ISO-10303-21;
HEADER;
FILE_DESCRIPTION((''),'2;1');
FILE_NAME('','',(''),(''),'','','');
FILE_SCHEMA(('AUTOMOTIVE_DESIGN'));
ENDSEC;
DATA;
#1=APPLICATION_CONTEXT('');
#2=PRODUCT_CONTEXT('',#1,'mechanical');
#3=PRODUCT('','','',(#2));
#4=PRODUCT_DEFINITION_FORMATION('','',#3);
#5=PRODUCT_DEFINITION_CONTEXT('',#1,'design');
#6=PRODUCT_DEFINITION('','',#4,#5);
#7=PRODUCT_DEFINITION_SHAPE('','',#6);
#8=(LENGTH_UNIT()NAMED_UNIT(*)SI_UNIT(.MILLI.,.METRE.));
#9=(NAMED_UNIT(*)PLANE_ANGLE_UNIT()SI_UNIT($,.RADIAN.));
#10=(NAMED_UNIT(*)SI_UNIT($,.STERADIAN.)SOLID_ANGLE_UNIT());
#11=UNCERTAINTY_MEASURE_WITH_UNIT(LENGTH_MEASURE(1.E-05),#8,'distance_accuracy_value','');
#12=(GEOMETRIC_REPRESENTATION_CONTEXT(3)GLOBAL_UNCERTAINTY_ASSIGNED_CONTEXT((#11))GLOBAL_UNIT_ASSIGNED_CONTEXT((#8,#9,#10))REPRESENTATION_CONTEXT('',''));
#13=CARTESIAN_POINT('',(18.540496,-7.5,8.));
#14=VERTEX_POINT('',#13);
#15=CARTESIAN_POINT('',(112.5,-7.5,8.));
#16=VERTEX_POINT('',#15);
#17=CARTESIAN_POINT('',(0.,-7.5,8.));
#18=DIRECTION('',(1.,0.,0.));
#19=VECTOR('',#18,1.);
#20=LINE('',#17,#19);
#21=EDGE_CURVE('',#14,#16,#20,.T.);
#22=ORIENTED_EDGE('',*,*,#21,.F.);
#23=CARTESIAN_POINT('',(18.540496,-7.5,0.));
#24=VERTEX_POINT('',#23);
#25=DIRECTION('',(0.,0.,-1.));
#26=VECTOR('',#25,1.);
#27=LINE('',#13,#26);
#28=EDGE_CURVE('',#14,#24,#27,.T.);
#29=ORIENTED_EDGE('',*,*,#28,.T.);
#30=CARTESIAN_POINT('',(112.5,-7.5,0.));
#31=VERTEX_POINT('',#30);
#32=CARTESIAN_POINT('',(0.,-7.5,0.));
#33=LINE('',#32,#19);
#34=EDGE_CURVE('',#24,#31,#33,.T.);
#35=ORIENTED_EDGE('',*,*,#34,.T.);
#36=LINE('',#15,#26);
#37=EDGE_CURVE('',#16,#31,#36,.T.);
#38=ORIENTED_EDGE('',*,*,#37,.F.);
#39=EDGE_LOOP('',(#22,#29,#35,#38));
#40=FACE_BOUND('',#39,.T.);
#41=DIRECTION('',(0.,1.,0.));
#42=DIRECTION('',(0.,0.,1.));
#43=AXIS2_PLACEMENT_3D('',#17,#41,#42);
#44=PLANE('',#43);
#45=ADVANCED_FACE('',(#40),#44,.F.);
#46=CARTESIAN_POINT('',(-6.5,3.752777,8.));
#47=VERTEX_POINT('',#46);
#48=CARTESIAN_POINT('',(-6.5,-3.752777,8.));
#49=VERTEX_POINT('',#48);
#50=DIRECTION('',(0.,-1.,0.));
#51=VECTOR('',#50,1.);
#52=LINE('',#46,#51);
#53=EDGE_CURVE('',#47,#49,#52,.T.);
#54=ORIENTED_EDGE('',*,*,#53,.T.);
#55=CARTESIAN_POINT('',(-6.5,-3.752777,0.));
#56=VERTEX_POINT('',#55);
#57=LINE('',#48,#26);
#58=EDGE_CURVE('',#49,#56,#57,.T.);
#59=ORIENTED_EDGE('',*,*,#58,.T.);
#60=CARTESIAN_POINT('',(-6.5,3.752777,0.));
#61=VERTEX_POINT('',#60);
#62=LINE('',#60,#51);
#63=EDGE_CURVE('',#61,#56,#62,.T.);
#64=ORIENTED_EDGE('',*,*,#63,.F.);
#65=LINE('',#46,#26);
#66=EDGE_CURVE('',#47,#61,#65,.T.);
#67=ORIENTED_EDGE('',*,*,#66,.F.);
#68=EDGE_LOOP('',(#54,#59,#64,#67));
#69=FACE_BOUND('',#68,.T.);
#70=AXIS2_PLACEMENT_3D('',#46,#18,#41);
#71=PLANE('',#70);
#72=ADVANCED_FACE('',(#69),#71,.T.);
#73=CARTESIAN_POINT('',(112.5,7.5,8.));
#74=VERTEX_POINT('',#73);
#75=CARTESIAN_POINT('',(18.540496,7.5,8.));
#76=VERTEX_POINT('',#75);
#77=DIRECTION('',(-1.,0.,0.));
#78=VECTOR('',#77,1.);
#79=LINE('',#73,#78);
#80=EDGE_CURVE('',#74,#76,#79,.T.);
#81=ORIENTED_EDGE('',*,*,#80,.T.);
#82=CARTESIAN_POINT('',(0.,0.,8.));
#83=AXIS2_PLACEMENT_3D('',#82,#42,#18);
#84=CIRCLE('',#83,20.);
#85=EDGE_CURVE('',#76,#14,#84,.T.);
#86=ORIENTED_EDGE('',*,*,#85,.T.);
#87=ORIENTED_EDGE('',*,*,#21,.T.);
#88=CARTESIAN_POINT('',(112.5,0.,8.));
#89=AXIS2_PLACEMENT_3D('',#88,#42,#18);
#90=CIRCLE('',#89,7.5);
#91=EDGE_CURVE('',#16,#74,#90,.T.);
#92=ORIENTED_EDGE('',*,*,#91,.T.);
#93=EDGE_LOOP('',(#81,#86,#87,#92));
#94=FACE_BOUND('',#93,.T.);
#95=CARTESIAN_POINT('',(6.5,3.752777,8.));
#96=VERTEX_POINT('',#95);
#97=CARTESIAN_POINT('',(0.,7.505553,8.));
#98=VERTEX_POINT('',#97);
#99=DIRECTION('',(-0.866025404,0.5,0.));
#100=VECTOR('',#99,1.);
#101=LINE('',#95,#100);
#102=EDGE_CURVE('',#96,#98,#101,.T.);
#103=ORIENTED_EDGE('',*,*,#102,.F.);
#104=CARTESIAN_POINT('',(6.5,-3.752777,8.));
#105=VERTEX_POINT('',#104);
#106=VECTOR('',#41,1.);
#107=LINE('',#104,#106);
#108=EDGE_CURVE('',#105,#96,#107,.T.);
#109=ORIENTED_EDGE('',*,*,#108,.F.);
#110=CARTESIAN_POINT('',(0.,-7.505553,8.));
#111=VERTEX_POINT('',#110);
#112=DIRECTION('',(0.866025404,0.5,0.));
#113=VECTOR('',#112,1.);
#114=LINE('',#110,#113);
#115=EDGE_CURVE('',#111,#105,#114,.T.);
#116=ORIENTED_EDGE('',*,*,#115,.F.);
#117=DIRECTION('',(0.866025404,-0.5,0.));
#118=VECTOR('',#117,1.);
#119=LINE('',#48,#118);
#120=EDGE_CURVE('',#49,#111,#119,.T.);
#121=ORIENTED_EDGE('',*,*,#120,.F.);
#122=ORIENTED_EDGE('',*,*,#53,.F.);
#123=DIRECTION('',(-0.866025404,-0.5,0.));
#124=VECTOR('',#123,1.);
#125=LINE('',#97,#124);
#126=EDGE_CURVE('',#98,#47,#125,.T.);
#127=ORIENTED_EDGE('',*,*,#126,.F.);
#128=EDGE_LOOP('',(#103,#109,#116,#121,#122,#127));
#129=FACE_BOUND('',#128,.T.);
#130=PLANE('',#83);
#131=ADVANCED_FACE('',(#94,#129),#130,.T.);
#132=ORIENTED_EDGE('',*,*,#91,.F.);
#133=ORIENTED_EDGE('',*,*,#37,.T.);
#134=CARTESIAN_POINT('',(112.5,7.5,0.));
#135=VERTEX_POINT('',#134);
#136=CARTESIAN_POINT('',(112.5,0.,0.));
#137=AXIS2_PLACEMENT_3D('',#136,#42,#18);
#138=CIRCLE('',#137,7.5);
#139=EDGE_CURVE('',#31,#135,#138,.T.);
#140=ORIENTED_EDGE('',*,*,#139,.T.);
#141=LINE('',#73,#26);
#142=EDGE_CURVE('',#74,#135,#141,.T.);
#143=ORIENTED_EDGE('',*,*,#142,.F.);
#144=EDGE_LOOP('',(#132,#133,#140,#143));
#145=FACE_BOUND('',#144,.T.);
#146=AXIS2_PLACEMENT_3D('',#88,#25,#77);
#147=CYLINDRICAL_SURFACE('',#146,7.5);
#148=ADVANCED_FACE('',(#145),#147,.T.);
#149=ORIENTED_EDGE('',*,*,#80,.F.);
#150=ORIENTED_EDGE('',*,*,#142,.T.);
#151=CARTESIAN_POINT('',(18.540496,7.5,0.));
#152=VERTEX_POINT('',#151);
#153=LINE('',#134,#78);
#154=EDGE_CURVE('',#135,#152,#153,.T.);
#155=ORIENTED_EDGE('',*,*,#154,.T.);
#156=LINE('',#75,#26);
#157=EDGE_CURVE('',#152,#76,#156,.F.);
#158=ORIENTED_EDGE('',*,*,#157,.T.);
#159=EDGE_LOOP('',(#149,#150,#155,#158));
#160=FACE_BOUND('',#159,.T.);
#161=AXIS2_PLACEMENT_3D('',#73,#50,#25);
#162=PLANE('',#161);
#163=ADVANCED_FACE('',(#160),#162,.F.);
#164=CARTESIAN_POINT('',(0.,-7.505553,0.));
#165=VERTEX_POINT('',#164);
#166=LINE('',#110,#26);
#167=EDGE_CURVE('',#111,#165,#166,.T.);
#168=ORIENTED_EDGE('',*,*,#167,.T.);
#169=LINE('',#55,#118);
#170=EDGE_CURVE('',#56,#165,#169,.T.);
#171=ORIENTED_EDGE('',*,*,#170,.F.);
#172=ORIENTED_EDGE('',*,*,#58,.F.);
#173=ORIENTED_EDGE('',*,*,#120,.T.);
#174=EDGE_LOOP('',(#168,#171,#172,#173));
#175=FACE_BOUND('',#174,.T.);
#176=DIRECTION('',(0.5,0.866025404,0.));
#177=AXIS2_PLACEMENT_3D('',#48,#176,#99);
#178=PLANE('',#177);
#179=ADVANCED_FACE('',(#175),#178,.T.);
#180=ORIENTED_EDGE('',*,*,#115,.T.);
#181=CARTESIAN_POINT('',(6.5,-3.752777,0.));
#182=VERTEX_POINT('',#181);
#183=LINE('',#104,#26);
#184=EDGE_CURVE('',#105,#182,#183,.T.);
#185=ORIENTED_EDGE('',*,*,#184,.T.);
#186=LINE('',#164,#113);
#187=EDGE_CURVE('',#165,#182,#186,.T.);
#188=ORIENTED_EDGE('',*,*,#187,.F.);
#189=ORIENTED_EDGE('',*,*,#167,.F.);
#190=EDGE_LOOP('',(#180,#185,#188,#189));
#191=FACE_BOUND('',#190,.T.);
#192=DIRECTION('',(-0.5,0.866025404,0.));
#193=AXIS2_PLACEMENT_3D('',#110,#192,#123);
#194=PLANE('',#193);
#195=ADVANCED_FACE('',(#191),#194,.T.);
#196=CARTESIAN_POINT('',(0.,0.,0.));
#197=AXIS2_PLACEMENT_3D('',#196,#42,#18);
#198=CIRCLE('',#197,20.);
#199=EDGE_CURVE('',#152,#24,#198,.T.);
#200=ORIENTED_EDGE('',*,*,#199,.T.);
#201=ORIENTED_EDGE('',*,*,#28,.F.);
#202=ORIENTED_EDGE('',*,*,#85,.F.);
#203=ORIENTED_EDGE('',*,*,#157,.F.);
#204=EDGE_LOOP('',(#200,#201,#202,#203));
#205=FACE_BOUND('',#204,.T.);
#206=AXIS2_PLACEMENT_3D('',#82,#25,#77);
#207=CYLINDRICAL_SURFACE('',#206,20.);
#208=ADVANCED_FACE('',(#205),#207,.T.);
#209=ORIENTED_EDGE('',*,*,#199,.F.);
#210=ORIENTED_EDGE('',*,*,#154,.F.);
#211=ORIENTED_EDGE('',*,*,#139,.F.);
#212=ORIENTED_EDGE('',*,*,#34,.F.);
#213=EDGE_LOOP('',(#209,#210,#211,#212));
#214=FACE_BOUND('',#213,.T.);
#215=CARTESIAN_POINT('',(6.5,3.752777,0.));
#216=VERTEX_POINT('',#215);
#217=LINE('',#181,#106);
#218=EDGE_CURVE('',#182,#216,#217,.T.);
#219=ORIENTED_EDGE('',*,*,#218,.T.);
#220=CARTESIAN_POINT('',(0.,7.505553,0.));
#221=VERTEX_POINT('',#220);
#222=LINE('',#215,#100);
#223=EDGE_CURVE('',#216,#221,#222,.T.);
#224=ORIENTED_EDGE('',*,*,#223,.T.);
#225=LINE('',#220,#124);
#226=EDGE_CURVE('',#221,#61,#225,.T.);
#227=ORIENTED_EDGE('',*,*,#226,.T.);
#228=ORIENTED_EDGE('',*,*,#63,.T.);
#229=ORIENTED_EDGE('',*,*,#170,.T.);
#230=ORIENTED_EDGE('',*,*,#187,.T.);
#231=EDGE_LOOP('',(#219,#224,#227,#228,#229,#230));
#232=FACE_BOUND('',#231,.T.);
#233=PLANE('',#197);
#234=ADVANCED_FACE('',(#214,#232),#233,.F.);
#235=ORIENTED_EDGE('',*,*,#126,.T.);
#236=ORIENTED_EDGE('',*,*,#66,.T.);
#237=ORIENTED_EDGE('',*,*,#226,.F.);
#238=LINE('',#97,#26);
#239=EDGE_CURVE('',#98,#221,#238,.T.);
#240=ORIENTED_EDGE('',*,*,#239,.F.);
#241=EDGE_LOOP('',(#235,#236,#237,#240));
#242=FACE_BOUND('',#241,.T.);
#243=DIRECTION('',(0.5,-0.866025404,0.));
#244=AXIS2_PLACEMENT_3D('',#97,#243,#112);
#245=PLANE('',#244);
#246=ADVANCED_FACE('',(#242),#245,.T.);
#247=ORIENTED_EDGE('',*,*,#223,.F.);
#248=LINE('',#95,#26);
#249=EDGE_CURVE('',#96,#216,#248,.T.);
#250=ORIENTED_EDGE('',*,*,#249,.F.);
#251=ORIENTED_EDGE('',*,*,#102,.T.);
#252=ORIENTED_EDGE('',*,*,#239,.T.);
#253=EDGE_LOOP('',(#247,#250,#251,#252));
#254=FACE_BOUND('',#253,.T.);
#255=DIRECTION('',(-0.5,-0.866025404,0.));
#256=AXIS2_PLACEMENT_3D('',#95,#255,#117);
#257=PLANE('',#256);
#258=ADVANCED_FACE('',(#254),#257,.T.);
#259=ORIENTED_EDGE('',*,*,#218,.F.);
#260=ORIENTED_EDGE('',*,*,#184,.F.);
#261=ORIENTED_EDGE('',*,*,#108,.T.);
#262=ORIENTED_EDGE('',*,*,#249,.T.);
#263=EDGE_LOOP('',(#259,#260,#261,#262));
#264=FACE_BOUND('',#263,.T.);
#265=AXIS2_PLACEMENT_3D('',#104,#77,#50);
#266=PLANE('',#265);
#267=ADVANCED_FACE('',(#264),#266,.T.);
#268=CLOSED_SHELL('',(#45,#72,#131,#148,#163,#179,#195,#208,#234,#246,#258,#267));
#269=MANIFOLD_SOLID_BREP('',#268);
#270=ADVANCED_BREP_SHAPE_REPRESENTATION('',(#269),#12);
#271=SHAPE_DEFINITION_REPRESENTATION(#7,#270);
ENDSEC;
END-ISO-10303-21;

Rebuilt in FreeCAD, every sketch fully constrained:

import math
import FreeCAD as App
import Part
import Sketcher
from FreeCAD import Vector
Q = App.Units.Quantity


def add_polygon(sketch, points):
    """Adds a closed chain of lines whose ends are joined by coincident constraints."""
    first, n = sketch.GeometryCount, len(points)
    for a, b in zip(points, points[1:] + points[:1]):
        sketch.addGeometry(Part.LineSegment(App.Vector(*a, 0), App.Vector(*b, 0)), False)
    for i in range(n):
        sketch.addConstraint(Sketcher.Constraint("Coincident", first + i, 2, first + (i + 1) % n, 1))

doc = App.newDocument("Part")
params = doc.addObject("Spreadsheet::Sheet", "Params")
for row, (alias, value) in enumerate([
    ("sketch1_diameter", "40 mm"),
    ("pad1_length", "8 mm"),
    ("sketch2_radius", "7.5 mm"),
    ("sketch2_width", "112.5 mm"),
    ("pad2_length", "8 mm"),
], start=1):
    params.set(f"A{row}", alias)
    params.set(f"B{row}", "=" + value)
    params.setAlias(f"B{row}", alias)

body = doc.addObject("PartDesign::Body", "Body")

sketch1 = body.newObject("Sketcher::SketchObject", "Sketch")
sketch1.AttachmentSupport = (doc.getObject("XY_Plane"), [""])
sketch1.MapMode = "FlatFace"
sketch1.addGeometry(Part.Circle(Vector(0, 0, 0), Vector(0, 0, 1), 20), False)
sketch1.addConstraint([
    Sketcher.Constraint("Coincident", 0, 3, -1, 1),
    Sketcher.Constraint("Diameter", 0, 40.0),
])
sketch1.setExpression("Constraints[1]", "Params.sketch1_diameter")
pad1 = body.newObject("PartDesign::Pad", "Pad")
pad1.Profile = sketch1
pad1.setExpression("Length", "Params.pad1_length")

sketch2 = body.newObject("Sketcher::SketchObject", "Sketch001")
sketch2.AttachmentSupport = (doc.getObject("XY_Plane"), [""])
sketch2.MapMode = "FlatFace"
sketch2.addGeometry([
    Part.LineSegment(Vector(0, -7.5, 0), Vector(112.5, -7.5, 0)),
    Part.ArcOfCircle(Part.Circle(Vector(112.5, 0, 0), Vector(0, 0, 1), 7.5), math.radians(-90), math.radians(90)),
    Part.LineSegment(Vector(112.5, 7.5, 0), Vector(0, 7.5, 0)),
    Part.ArcOfCircle(Part.Circle(Vector(0, 0, 0), Vector(0, 0, 1), 7.5), math.radians(90), math.radians(270)),
], False)
sketch2.addConstraint([
    Sketcher.Constraint("Tangent", 0, 2, 1, 1),
    Sketcher.Constraint("Tangent", 1, 2, 2, 1),
    Sketcher.Constraint("Tangent", 2, 2, 3, 1),
    Sketcher.Constraint("Tangent", 3, 2, 0, 1),
    Sketcher.Constraint("Horizontal", 0),
    Sketcher.Constraint("Horizontal", 2),
    Sketcher.Constraint("Coincident", 3, 3, -1, 1),
    Sketcher.Constraint("Radius", 1, 7.5),
    Sketcher.Constraint("DistanceX", 0, 1, 0, 2, 112.5),
])
sketch2.setExpression("Constraints[7]", "Params.sketch2_radius")
sketch2.setExpression("Constraints[8]", "Params.sketch2_width")
pad2 = body.newObject("PartDesign::Pad", "Pad001")
pad2.Profile = sketch2
pad2.setExpression("Length", "Params.pad2_length")

sketch3 = body.newObject("Sketcher::SketchObject", "Sketch002")
sketch3.AttachmentSupport = (doc.getObject("XY_Plane"), [""])
sketch3.MapMode = "FlatFace"
add_polygon(sketch3, [(6.5, 3.752777), (0, 7.505553), (-6.5, 3.752777), (-6.5, -3.752777), (0, -7.505553), (6.5, -3.752777)])
sketch3.addConstraint([
    Sketcher.Constraint("Vertical", 2),
    Sketcher.Constraint("Vertical", 5),
    Sketcher.Constraint("Symmetric", 0, 2, 3, 2, -1, 1),
    Sketcher.Constraint("Symmetric", 1, 2, 4, 2, -1, 1),
    Sketcher.Constraint("PointOnObject", 0, 2, -2),
    Sketcher.Constraint("Parallel", 0, 3),
    Sketcher.Constraint("Horizontal", 2, 2, 4, 2),
    Sketcher.Constraint("Angle", 0, Q("150 deg")),
    Sketcher.Constraint("DistanceX", 2, 2, 4, 2, 13.0),
    Sketcher.Constraint("DistanceY", 2, 2, 2, 1, 7.505554),
])
pocket1 = body.newObject("PartDesign::Pocket", "Pocket")
pocket1.Profile = sketch3
pocket1.Type = "ThroughAll"
pocket1.Reversed = True

doc.recompute()
